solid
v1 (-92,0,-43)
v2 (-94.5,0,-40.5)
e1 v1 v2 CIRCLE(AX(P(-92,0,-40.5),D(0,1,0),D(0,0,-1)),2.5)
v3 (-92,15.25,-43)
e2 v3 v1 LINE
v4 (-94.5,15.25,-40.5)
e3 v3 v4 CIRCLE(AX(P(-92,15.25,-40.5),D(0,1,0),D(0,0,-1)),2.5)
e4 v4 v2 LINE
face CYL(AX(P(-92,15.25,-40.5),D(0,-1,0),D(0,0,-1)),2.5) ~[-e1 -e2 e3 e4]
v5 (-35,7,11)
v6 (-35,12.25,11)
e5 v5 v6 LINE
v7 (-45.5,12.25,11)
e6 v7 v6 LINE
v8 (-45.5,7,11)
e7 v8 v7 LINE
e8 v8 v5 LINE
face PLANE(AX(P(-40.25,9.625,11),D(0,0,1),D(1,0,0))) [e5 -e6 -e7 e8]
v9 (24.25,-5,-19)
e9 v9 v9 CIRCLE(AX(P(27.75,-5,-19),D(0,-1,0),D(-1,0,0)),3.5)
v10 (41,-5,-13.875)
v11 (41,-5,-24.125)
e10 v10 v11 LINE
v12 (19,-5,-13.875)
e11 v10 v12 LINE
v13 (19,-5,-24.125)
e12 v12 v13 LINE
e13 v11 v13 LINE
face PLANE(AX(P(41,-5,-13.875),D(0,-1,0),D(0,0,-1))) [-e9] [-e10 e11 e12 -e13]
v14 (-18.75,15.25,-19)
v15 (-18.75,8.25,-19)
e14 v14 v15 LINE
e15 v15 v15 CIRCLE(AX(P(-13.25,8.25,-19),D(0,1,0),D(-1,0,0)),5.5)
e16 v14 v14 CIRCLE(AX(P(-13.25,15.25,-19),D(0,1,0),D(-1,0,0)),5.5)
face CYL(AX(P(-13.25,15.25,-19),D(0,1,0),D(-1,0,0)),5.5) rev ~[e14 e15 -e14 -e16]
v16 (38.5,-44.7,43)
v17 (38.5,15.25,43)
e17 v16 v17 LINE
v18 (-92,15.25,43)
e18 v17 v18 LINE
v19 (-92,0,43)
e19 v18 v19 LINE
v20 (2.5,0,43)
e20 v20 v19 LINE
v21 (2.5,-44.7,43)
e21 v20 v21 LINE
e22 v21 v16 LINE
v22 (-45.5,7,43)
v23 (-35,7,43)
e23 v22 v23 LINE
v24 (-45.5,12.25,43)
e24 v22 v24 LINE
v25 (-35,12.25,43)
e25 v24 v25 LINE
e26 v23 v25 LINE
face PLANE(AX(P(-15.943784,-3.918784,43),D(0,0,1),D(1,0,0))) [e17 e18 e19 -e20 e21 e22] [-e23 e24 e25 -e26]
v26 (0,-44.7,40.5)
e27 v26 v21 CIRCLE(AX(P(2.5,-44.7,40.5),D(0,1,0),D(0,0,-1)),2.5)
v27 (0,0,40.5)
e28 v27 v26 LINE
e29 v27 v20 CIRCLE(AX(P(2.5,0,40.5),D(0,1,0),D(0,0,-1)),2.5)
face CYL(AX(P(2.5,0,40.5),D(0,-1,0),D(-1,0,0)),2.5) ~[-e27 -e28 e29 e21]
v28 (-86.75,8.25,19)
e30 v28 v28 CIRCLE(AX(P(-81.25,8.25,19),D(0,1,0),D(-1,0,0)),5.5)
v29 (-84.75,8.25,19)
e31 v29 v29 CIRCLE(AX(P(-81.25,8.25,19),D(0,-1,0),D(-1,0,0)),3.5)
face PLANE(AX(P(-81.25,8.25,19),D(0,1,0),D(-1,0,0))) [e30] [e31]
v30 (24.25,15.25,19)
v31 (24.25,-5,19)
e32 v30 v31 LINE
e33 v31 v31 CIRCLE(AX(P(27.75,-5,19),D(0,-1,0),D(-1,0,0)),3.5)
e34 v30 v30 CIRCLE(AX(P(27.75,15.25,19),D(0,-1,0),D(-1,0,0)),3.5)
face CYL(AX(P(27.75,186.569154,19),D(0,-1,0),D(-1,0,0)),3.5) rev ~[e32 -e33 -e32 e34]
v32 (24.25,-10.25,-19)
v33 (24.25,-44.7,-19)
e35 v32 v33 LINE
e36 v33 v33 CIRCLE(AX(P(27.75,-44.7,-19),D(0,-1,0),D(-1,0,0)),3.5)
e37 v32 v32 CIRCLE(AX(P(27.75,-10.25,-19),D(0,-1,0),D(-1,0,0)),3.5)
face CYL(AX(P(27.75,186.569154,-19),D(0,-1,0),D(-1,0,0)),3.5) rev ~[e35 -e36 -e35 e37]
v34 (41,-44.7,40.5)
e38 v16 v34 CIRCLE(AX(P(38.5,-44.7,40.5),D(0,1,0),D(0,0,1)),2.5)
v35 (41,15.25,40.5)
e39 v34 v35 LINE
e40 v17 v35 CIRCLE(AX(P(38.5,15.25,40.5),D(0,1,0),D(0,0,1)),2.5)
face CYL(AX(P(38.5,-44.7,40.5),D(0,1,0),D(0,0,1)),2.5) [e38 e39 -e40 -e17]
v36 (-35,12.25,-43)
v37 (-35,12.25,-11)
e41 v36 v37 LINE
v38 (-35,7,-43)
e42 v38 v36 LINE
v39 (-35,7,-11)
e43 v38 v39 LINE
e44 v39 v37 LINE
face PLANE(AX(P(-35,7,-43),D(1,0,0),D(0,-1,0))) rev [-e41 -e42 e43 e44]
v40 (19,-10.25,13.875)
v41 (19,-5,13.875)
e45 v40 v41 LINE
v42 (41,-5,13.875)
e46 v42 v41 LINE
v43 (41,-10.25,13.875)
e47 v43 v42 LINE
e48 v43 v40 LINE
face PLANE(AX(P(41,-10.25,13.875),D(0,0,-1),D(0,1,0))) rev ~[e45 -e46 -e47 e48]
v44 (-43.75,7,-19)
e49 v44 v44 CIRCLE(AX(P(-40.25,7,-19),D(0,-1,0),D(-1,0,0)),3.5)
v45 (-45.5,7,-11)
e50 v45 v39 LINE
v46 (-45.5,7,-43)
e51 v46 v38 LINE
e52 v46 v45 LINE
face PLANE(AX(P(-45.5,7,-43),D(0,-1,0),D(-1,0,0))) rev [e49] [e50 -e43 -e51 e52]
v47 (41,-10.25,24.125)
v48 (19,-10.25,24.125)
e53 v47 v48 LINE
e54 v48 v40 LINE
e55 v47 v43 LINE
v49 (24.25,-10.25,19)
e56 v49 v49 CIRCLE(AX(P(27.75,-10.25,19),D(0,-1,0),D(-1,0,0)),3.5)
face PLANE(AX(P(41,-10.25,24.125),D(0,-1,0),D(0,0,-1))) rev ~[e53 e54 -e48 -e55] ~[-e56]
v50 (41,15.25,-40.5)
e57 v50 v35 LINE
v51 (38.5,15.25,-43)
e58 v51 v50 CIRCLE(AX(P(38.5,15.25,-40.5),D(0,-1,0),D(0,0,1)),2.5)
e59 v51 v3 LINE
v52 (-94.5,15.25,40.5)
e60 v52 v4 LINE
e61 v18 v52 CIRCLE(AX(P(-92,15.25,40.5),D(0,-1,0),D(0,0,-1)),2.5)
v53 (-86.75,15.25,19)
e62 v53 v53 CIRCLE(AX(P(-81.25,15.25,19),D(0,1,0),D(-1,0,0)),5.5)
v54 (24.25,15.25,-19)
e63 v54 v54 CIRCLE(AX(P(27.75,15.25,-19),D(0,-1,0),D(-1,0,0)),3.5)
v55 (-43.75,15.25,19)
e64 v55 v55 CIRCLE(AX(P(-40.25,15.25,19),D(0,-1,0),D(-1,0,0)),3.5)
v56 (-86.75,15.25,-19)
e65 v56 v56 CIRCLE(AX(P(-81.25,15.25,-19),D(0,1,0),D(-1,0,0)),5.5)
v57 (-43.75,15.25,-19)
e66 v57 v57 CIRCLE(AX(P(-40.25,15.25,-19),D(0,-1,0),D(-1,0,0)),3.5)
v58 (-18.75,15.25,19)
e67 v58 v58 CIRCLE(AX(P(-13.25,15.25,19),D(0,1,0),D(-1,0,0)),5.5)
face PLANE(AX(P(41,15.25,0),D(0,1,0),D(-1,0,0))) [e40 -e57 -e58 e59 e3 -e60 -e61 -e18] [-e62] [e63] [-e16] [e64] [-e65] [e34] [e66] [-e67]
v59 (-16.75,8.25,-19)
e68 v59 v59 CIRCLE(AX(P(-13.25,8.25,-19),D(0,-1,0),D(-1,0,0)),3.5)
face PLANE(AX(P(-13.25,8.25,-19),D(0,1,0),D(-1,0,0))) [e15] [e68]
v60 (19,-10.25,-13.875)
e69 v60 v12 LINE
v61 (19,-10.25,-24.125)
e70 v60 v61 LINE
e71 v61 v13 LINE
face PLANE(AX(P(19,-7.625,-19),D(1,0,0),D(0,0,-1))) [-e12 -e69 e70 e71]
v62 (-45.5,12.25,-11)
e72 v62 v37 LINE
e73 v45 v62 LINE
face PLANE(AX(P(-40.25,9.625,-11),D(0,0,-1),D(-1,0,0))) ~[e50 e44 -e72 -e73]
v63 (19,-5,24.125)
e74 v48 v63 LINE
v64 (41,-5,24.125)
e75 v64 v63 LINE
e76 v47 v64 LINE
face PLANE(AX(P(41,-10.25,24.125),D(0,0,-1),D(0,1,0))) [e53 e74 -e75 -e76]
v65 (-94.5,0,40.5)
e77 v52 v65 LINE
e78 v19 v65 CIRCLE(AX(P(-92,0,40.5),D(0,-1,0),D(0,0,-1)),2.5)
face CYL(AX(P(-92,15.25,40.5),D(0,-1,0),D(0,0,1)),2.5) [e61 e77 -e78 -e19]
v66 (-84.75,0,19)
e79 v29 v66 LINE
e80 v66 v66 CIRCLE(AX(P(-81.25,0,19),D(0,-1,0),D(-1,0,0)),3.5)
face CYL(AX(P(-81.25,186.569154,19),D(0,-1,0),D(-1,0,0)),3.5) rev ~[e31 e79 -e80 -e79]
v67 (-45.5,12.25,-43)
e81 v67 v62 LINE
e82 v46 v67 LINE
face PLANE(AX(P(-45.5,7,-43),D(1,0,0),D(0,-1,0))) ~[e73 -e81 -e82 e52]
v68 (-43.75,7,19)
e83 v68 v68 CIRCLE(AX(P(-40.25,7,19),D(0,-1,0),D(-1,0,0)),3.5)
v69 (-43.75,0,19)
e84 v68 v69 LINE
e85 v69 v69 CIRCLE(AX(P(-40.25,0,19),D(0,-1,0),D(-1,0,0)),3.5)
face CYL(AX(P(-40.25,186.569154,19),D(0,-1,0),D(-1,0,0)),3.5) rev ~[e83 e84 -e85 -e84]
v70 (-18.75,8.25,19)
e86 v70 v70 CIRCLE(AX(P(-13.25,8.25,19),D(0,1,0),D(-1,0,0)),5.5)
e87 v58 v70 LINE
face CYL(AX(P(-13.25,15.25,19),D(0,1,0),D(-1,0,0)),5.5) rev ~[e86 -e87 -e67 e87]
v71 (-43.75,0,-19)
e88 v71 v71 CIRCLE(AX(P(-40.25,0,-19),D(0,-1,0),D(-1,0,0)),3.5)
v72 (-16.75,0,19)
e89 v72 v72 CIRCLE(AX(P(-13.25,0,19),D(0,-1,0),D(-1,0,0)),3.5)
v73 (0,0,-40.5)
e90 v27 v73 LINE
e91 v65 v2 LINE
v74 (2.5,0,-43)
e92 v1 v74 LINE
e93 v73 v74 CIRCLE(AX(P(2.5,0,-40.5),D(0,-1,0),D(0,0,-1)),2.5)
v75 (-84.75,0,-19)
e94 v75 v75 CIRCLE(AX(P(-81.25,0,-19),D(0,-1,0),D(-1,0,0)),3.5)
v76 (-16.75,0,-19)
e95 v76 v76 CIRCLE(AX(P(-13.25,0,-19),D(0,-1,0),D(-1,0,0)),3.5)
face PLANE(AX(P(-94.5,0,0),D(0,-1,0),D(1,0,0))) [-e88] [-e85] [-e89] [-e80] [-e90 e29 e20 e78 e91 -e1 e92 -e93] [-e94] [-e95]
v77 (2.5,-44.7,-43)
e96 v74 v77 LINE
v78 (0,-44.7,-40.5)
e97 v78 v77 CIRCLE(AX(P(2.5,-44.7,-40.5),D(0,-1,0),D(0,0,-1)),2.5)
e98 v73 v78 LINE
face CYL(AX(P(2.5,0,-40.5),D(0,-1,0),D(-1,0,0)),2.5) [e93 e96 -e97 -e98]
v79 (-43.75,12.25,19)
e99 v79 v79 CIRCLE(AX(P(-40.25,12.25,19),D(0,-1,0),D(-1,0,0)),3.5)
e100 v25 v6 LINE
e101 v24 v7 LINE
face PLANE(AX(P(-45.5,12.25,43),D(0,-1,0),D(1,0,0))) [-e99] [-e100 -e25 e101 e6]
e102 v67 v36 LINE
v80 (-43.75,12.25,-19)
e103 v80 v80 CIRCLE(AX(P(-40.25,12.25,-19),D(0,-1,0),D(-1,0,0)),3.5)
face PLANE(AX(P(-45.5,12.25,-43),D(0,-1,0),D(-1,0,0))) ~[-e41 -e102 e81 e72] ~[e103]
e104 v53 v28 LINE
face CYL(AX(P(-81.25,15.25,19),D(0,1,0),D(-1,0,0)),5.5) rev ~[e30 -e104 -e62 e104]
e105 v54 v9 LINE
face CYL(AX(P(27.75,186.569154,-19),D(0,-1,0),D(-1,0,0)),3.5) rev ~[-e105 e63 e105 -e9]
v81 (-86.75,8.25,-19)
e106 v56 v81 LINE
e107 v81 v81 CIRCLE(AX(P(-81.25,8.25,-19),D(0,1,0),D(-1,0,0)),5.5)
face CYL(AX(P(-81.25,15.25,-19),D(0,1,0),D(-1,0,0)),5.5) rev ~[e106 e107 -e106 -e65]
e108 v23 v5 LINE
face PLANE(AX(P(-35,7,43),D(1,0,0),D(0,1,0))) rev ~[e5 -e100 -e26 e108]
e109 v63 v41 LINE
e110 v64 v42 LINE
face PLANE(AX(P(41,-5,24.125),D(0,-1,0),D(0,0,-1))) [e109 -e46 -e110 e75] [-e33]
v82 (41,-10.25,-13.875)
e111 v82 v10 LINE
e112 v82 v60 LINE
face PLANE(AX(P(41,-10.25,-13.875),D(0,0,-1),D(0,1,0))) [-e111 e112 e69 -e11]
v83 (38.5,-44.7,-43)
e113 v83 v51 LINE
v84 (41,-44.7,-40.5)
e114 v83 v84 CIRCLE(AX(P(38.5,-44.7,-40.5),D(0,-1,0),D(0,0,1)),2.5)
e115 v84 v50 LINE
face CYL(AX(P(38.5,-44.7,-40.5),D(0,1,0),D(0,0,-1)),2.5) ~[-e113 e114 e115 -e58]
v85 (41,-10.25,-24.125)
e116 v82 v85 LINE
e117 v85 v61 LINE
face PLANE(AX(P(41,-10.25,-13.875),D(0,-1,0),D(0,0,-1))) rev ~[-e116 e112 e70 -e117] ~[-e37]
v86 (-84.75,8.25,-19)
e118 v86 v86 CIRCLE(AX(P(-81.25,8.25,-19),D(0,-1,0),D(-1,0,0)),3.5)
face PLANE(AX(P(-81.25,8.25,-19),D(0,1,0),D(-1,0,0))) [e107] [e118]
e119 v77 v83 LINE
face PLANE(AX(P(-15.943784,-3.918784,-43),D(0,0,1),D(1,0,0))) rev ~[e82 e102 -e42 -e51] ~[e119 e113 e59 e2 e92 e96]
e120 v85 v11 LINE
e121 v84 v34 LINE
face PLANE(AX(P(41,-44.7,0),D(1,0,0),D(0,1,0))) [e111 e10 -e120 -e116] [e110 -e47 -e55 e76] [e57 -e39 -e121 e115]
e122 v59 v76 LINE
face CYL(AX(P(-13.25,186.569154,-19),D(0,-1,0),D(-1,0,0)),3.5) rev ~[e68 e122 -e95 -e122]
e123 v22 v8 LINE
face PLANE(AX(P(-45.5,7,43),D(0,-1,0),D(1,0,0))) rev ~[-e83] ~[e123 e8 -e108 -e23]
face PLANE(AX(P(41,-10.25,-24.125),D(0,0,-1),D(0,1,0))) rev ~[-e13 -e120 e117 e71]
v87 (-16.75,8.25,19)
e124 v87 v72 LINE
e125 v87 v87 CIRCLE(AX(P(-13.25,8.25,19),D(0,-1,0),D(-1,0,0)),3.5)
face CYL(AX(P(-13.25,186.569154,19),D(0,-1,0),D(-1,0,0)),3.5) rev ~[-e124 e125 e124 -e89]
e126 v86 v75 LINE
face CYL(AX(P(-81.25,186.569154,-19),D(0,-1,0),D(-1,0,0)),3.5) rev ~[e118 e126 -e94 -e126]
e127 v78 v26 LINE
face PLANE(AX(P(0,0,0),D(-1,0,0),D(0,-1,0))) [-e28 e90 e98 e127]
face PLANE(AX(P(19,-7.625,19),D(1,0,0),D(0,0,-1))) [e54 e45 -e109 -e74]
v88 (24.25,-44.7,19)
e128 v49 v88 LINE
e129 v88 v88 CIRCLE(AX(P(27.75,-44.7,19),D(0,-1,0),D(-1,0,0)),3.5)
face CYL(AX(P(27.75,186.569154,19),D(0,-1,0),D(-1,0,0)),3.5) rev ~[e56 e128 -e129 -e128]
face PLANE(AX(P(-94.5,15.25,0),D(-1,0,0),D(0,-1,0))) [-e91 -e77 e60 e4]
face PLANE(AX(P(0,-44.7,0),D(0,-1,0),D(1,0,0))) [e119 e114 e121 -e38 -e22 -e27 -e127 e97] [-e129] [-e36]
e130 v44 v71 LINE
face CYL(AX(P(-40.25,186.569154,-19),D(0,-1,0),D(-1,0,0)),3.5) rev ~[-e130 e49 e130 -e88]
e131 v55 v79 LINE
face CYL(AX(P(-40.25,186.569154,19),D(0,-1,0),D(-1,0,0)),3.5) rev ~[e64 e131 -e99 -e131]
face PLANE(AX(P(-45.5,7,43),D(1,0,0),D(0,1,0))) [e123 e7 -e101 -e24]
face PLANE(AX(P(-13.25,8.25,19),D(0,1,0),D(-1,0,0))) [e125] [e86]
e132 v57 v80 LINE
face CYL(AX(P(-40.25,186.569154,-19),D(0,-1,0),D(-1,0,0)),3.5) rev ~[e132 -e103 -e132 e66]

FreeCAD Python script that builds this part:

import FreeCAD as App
import Part
import Sketcher
from FreeCAD import Vector
Q = App.Units.Quantity


def edges_at(feature, points):
    """Names of the edges that pass closest to the given points."""
    edges = feature.Shape.Edges
    near = lambda p: min(range(len(edges)), key=lambda i: edges[i].distToShape(Part.Vertex(*p))[0])
    return sorted({f"Edge{near(p) + 1}" for p in points})


def add_polygon(sketch, points):
    """Adds a closed chain of lines whose ends are joined by coincident constraints."""
    first, n = sketch.GeometryCount, len(points)
    for a, b in zip(points, points[1:] + points[:1]):
        sketch.addGeometry(Part.LineSegment(App.Vector(*a, 0), App.Vector(*b, 0)), False)
    for i in range(n):
        sketch.addConstraint(Sketcher.Constraint("Coincident", first + i, 2, first + (i + 1) % n, 1))

doc = App.newDocument("Part")
params = doc.addObject("Spreadsheet::Sheet", "Params")
for row, (alias, value) in enumerate([
    ("sketch1_width", "41 mm"),
    ("sketch1_width2", "135.5 mm"),
    ("sketch1_height", "44.7 mm"),
    ("sketch1_height2", "59.95 mm"),
    ("pad1_length", "86 mm"),
    ("sketch2_diameter", "7 mm"),
    ("hole_diameter", "7 mm"),
    ("sketch3_diameter", "11 mm"),
    ("pocket1_length", "7 mm"),
    ("sketch4_width", "5.25 mm"),
    ("sketch4_height", "10.25 mm"),
    ("pocket2_length", "22 mm"),
    ("sketch5_width", "10.5 mm"),
    ("sketch5_height", "5.25 mm"),
    ("pocket3_length", "32 mm"),
    ("fillet_radius", "2.5 mm"),
], start=1):
    params.set(f"A{row}", alias)
    params.set(f"B{row}", "=" + value)
    params.setAlias(f"B{row}", alias)

body = doc.addObject("PartDesign::Body", "Body")

# Sketch on XY plane
sketch1 = body.newObject("Sketcher::SketchObject", "Sketch")
sketch1.AttachmentSupport = (doc.getObject("XY_Plane"), [""])
sketch1.MapMode = "FlatFace"
add_polygon(sketch1, [(0, 0), (0, -44.7), (41, -44.7), (41, 15.25), (-94.5, 15.25), (-94.5, 0)])  # lines 0-5
sketch1.addConstraint([
    Sketcher.Constraint("Vertical", 0),
    Sketcher.Constraint("Horizontal", 1),
    Sketcher.Constraint("Vertical", 2),
    Sketcher.Constraint("Horizontal", 3),
    Sketcher.Constraint("Vertical", 4),
    Sketcher.Constraint("Horizontal", 5),
    Sketcher.Constraint("Coincident", 5, 2, -1, 1),
    Sketcher.Constraint("DistanceX", 1, 1, 1, 2, Q("41 mm")),
    Sketcher.Constraint("DistanceX", 3, 2, 3, 1, Q("135.5 mm")),
    Sketcher.Constraint("DistanceY", 0, 2, 0, 1, Q("44.7 mm")),
    Sketcher.Constraint("DistanceY", 2, 1, 2, 2, Q("59.95 mm")),
])
sketch1.setExpression("Constraints[13]", "Params.sketch1_width")
sketch1.setExpression("Constraints[14]", "Params.sketch1_width2")
sketch1.setExpression("Constraints[15]", "Params.sketch1_height")
sketch1.setExpression("Constraints[16]", "Params.sketch1_height2")
pad1 = body.newObject("PartDesign::Pad", "Pad")
pad1.Profile = sketch1
pad1.setExpression("Length", "Params.pad1_length")
pad1.Midplane = True

# Sketch on XZ plane
sketch2 = body.newObject("Sketcher::SketchObject", "Sketch001")
sketch2.AttachmentSupport = (doc.getObject("XZ_Plane"), [""])
sketch2.MapMode = "FlatFace"
sketch2.AttachmentOffset = App.Placement(Vector(0, 0, -15.25), App.Rotation())
sketch2.addGeometry([
    Part.Circle(Vector(-81.25, -19, 0), Vector(0, 0, 1), 3.5),  # 0
    Part.Circle(Vector(-81.25, 19, 0), Vector(0, 0, 1), 3.5),  # 1
    Part.Circle(Vector(-13.25, 19, 0), Vector(0, 0, 1), 3.5),  # 2
    Part.Circle(Vector(-13.25, -19, 0), Vector(0, 0, 1), 3.5),  # 3
    Part.Circle(Vector(27.75, -19, 0), Vector(0, 0, 1), 3.5),  # 4
    Part.Circle(Vector(27.75, 19, 0), Vector(0, 0, 1), 3.5),  # 5
    Part.Circle(Vector(-40.25, -19, 0), Vector(0, 0, 1), 3.5),  # 6
    Part.Circle(Vector(-40.25, 19, 0), Vector(0, 0, 1), 3.5),  # 7
], False)
sketch2.addConstraint([
    Sketcher.Constraint("Equal", 0, 1),
    Sketcher.Constraint("Equal", 1, 2),
    Sketcher.Constraint("Equal", 2, 3),
    Sketcher.Constraint("Equal", 3, 4),
    Sketcher.Constraint("Equal", 4, 5),
    Sketcher.Constraint("Equal", 5, 6),
    Sketcher.Constraint("Equal", 6, 7),
    Sketcher.Constraint("Symmetric", 0, 3, 1, 3, -1),
    Sketcher.Constraint("Symmetric", 2, 3, 3, 3, -1),
    Sketcher.Constraint("Symmetric", 4, 3, 5, 3, -1),
    Sketcher.Constraint("Symmetric", 6, 3, 7, 3, -1),
    Sketcher.Constraint("Horizontal", 1, 3, 2, 3),
    Sketcher.Constraint("Horizontal", 3, 3, 4, 3),
    Sketcher.Constraint("Horizontal", 4, 3, 6, 3),
    Sketcher.Constraint("Diameter", 0, Q("7 mm")),
    Sketcher.Constraint("DistanceY", 0, 3, -1, 1, Q("19 mm")),
    Sketcher.Constraint("DistanceX", 1, 3, 2, 3, Q("68 mm")),
    Sketcher.Constraint("DistanceX", 3, 3, 4, 3, Q("41 mm")),
    Sketcher.Constraint("DistanceX", 6, 3, 3, 3, Q("27 mm")),
    Sketcher.Constraint("DistanceX", 0, 3, -1, 1, Q("81.25 mm")),
])
sketch2.setExpression("Constraints[14]", "Params.sketch2_diameter")
doc.recompute()
hole = body.newObject("PartDesign::Hole", "Hole")
hole.Profile = sketch2
hole.ThreadType = "None"
hole.setExpression("Diameter", "Params.hole_diameter")
hole.DepthType = "ThroughAll"
hole.Reversed = True

# Sketch on XZ plane
sketch3 = body.newObject("Sketcher::SketchObject", "Sketch002")
sketch3.AttachmentSupport = (doc.getObject("XZ_Plane"), [""])
sketch3.MapMode = "FlatFace"
sketch3.AttachmentOffset = App.Placement(Vector(0, 0, -15.25), App.Rotation())
sketch3.addGeometry([
    Part.Circle(Vector(-81.25, -19, 0), Vector(0, 0, 1), 5.5),
    Part.Circle(Vector(-81.25, 19, 0), Vector(0, 0, 1), 5.5),
    Part.Circle(Vector(-13.25, -19, 0), Vector(0, 0, 1), 5.5),
    Part.Circle(Vector(-13.25, 19, 0), Vector(0, 0, 1), 5.5),
], False)
sketch3.addConstraint([
    Sketcher.Constraint("Equal", 0, 1),
    Sketcher.Constraint("Equal", 1, 2),
    Sketcher.Constraint("Equal", 2, 3),
    Sketcher.Constraint("Symmetric", 0, 3, 1, 3, -1),
    Sketcher.Constraint("Symmetric", 2, 3, 3, 3, -1),
    Sketcher.Constraint("Horizontal", 0, 3, 2, 3),
    Sketcher.Constraint("Diameter", 0, Q("11 mm")),
    Sketcher.Constraint("DistanceY", 0, 3, -1, 1, Q("19 mm")),
    Sketcher.Constraint("DistanceX", 0, 3, 2, 3, Q("68 mm")),
    Sketcher.Constraint("DistanceX", 0, 3, -1, 1, Q("81.25 mm")),
])
sketch3.setExpression("Constraints[6]", "Params.sketch3_diameter")
pocket1 = body.newObject("PartDesign::Pocket", "Pocket")
pocket1.Profile = sketch3
pocket1.setExpression("Length", "Params.pocket1_length")
pocket1.Reversed = True

# Sketch on YZ plane
sketch4 = body.newObject("Sketcher::SketchObject", "Sketch003")
sketch4.AttachmentSupport = (doc.getObject("YZ_Plane"), [""])
sketch4.MapMode = "FlatFace"
sketch4.AttachmentOffset = App.Placement(Vector(0, 0, 41), App.Rotation())
add_polygon(sketch4, [(-5, 24.125), (-10.25, 24.125), (-10.25, 13.875), (-5, 13.875)])  # lines 0-3
add_polygon(sketch4, [(-5, -13.875), (-10.25, -13.875), (-10.25, -24.125), (-5, -24.125)])  # lines 4-7
sketch4.addConstraint([
    Sketcher.Constraint("Horizontal", 0),
    Sketcher.Constraint("Vertical", 1),
    Sketcher.Constraint("Horizontal", 2),
    Sketcher.Constraint("Vertical", 3),
    Sketcher.Constraint("Horizontal", 4),
    Sketcher.Constraint("Vertical", 5),
    Sketcher.Constraint("Horizontal", 6),
    Sketcher.Constraint("Vertical", 7),
    Sketcher.Constraint("Symmetric", 1, 2, 4, 2, -1),
    Sketcher.Constraint("Symmetric", 3, 2, 6, 2, -1),
    Sketcher.Constraint("DistanceX", 2, 2, -1, 1, Q("5 mm")),
    Sketcher.Constraint("DistanceY", 4, 2, 0, 2, Q("38 mm")),
    Sketcher.Constraint("DistanceX", 0, 2, 0, 1, Q("5.25 mm")),
    Sketcher.Constraint("DistanceY", 1, 2, 1, 1, Q("10.25 mm")),
])
sketch4.setExpression("Constraints[20]", "Params.sketch4_width")
sketch4.setExpression("Constraints[21]", "Params.sketch4_height")
pocket2 = body.newObject("PartDesign::Pocket", "Pocket001")
pocket2.Profile = sketch4
pocket2.setExpression("Length", "Params.pocket2_length")

# Sketch on XY plane
sketch5 = body.newObject("Sketcher::SketchObject", "Sketch004")
sketch5.AttachmentSupport = (doc.getObject("XY_Plane"), [""])
sketch5.MapMode = "FlatFace"
sketch5.AttachmentOffset = App.Placement(Vector(0, 0, 43), App.Rotation())
add_polygon(sketch5, [(-45.5, 12.25), (-45.5, 7), (-35, 7), (-35, 12.25)])  # lines 0-3
sketch5.addConstraint([
    Sketcher.Constraint("Vertical", 0),
    Sketcher.Constraint("Horizontal", 1),
    Sketcher.Constraint("Vertical", 2),
    Sketcher.Constraint("Horizontal", 3),
    Sketcher.Constraint("DistanceX", 1, 1, 1, 2, Q("10.5 mm")),
    Sketcher.Constraint("DistanceY", -1, 1, 0, 2, Q("7 mm")),
    Sketcher.Constraint("DistanceX", 1, 2, -1, 1, Q("35 mm")),
    Sketcher.Constraint("DistanceY", 0, 2, 0, 1, Q("5.25 mm")),
])
sketch5.setExpression("Constraints[8]", "Params.sketch5_width")
sketch5.setExpression("Constraints[11]", "Params.sketch5_height")
pocket3 = body.newObject("PartDesign::Pocket", "Pocket002")
pocket3.Profile = sketch5
pocket3.setExpression("Length", "Params.pocket3_length")
doc.recompute()

mirrored = body.newObject("PartDesign::Mirrored", "Mirrored")
mirrored.Originals = [pocket3]
mirrored.MirrorPlane = (doc.getObject("XY_Plane"), [""])
body.Tip = mirrored
doc.recompute()

fillet = body.newObject("PartDesign::Fillet", "Fillet")
fillet.Base = (mirrored, edges_at(mirrored, [
    (41, -14.725, 43),
    (-94.5, 7.625, 43),
    (-94.5, 7.625, -43),
    (41, -14.725, -43),
    (0, -22.35, -43),
    (0, -22.35, 43),
]))
fillet.setExpression("Radius", "Params.fillet_radius")

doc.recompute()
